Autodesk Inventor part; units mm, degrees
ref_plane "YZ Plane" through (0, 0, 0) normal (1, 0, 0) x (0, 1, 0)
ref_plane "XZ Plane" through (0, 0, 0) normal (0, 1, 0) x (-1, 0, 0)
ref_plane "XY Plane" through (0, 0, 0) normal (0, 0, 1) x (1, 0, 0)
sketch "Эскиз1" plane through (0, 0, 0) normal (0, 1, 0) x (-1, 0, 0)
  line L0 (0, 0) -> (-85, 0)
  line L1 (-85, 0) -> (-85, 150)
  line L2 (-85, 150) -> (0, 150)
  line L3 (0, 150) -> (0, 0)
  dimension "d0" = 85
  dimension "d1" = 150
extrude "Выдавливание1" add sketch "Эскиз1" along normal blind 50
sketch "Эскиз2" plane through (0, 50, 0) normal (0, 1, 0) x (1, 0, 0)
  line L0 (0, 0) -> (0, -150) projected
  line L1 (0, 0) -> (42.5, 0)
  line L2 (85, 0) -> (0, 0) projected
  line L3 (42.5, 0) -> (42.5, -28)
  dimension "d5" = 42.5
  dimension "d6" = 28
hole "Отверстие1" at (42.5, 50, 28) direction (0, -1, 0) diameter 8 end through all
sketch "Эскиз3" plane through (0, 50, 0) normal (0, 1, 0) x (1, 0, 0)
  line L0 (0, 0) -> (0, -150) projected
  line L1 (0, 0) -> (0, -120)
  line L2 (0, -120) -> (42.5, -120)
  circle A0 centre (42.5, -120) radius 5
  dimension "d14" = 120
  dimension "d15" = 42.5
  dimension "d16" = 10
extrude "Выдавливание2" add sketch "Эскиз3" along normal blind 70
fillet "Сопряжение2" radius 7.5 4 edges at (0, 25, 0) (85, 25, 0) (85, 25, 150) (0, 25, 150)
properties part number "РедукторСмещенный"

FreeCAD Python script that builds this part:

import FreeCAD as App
import Part
import Sketcher

V = App.Vector
Q = App.Units.Quantity


def edges_at(feature, points):
    """Names of the edges that pass closest to the given points."""
    edges = feature.Shape.Edges
    near = lambda p: min(range(len(edges)), key=lambda i: edges[i].distToShape(Part.Vertex(*p))[0])
    return sorted({f"Edge{near(p) + 1}" for p in points})


def add_polygon(sketch, points):
    """Adds a closed chain of lines whose ends are joined by coincident constraints."""
    first, n = sketch.GeometryCount, len(points)
    for a, b in zip(points, points[1:] + points[:1]):
        sketch.addGeometry(Part.LineSegment(App.Vector(*a, 0), App.Vector(*b, 0)), False)
    for i in range(n):
        sketch.addConstraint(Sketcher.Constraint("Coincident", first + i, 2, first + (i + 1) % n, 1))

doc = App.newDocument("Part")
body = doc.addObject("PartDesign::Body", "Body")

# Sketch on XZ plane
sketch1 = body.newObject("Sketcher::SketchObject", "Sketch")
sketch1.AttachmentSupport = (doc.getObject("XZ_Plane"), [""])
sketch1.MapMode = "FlatFace"
add_polygon(sketch1, [(85, 0), (0, 0), (0, 150), (85, 150)])  # lines 0-3
sketch1.addConstraint([
    Sketcher.Constraint("Horizontal", 0),
    Sketcher.Constraint("Vertical", 1),
    Sketcher.Constraint("Horizontal", 2),
    Sketcher.Constraint("Vertical", 3),
    Sketcher.Constraint("Coincident", 0, 2, -1, 1),
    Sketcher.Constraint("DistanceX", 0, 2, 0, 1, Q("85 mm")),
    Sketcher.Constraint("DistanceY", 1, 1, 1, 2, Q("150 mm")),
])
pad1 = body.newObject("PartDesign::Pad", "Pad")
pad1.Profile = sketch1
pad1.Length = 50
pad1.Reversed = True

# Sketch on XZ plane
sketch2 = body.newObject("Sketcher::SketchObject", "Sketch001")
sketch2.AttachmentSupport = (doc.getObject("XZ_Plane"), [""])
sketch2.MapMode = "FlatFace"
sketch2.AttachmentOffset = App.Placement(V(0, 0, -50), App.Rotation())
sketch2.addGeometry(Part.Circle(V(42.5, 28, 0), V(0, 0, 1), 4), False)
sketch2.addConstraint([
    Sketcher.Constraint("Diameter", 0, Q("8 mm")),
    Sketcher.Constraint("DistanceY", -1, 1, 0, 3, Q("28 mm")),
    Sketcher.Constraint("DistanceX", -1, 1, 0, 3, Q("42.5 mm")),
])
doc.recompute()
hole = body.newObject("PartDesign::Hole", "Hole")
hole.Profile = sketch2
hole.ThreadType = "None"
hole.Diameter = 8
hole.DepthType = "ThroughAll"
hole.Reversed = True

# Sketch on XZ plane
sketch3 = body.newObject("Sketcher::SketchObject", "Sketch002")
sketch3.AttachmentSupport = (doc.getObject("XZ_Plane"), [""])
sketch3.MapMode = "FlatFace"
sketch3.AttachmentOffset = App.Placement(V(0, 0, -50), App.Rotation())
sketch3.addGeometry(Part.Circle(V(42, 120, 0), V(0, 0, 1), 5), False)
sketch3.addConstraint([
    Sketcher.Constraint("Diameter", 0, Q("10 mm")),
    Sketcher.Constraint("DistanceY", -1, 1, 0, 3, Q("120 mm")),
    Sketcher.Constraint("DistanceX", -1, 1, 0, 3, Q("42.5 mm")),
])
pad2 = body.newObject("PartDesign::Pad", "Pad001")
pad2.Profile = sketch3
pad2.Length = 70
pad2.Reversed = True
doc.recompute()

fillet = body.newObject("PartDesign::Fillet", "Fillet")
fillet.Base = (pad2, edges_at(pad2, [
    (0, 25, 0),
    (85, 25, 0),
    (85, 25, 150),
    (0, 25, 150),
]))
fillet.Radius = 7.5

doc.recompute()
